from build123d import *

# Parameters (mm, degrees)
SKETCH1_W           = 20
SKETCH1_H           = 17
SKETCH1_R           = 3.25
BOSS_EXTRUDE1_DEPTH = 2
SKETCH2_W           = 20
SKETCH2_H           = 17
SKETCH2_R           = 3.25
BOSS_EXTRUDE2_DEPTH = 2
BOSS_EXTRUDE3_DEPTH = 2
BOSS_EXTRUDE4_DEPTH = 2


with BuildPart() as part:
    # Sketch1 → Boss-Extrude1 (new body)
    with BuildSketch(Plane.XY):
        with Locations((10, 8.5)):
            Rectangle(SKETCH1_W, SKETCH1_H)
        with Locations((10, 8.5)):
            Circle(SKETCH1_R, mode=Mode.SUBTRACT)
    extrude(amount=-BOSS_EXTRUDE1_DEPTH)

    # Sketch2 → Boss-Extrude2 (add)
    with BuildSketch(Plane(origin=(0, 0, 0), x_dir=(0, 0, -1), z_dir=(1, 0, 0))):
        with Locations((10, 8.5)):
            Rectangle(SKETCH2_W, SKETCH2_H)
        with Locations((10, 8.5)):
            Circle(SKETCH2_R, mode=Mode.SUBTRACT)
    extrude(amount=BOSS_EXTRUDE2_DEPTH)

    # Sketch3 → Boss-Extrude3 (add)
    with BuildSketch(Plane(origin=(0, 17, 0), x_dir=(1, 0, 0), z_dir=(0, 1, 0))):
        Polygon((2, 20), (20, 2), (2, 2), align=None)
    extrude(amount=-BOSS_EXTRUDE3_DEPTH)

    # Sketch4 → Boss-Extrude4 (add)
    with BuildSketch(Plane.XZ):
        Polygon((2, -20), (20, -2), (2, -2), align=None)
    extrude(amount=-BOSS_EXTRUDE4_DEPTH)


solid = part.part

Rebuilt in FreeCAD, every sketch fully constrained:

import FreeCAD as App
import Part
import Sketcher
from FreeCAD import Vector

doc = App.newDocument("Part")
body = doc.addObject("PartDesign::Body", "Body")

# Sketch on XY plane
sketch1 = doc.addObject("Sketcher::SketchObject", "Sketch")
body.addObject(sketch1)
sketch1.AttachmentSupport = (doc.XY_Plane, [""])
sketch1.MapMode = "FlatFace"
sketch1.addGeometry([
    Part.LineSegment(Vector(0, 17, 0), Vector(0, 0, 0)),  # 0
    Part.LineSegment(Vector(0, 0, 0), Vector(20, 0, 0)),  # 1
    Part.LineSegment(Vector(20, 0, 0), Vector(20, 17, 0)),  # 2
    Part.LineSegment(Vector(20, 17, 0), Vector(0, 17, 0)),  # 3
    Part.Circle(Vector(10, 8.5, 0), Vector(0, 0, 1), 3.2),  # 4
], False)
sketch1.addConstraint([
    Sketcher.Constraint("Coincident", 0, 2, 1, 1),
    Sketcher.Constraint("Coincident", 1, 2, 2, 1),
    Sketcher.Constraint("Coincident", 2, 2, 3, 1),
    Sketcher.Constraint("Coincident", 3, 2, 0, 1),
    Sketcher.Constraint("Vertical", 0),
    Sketcher.Constraint("Horizontal", 1),
    Sketcher.Constraint("Vertical", 2),
    Sketcher.Constraint("Horizontal", 3),
    Sketcher.Constraint("Coincident", 0, 2, -1, 1),
    Sketcher.Constraint("Diameter", 4, 6.5),
    Sketcher.Constraint("DistanceX", 1, 1, 1, 2, 20.0),
    Sketcher.Constraint("DistanceY", 0, 2, 0, 1, 17.0),
    Sketcher.Constraint("DistanceX", -1, 1, 4, 3, 10.0),
    Sketcher.Constraint("DistanceY", -1, 1, 4, 3, 8.5),
])
pad1 = doc.addObject("PartDesign::Pad", "Pad")
body.addObject(pad1)
pad1.Profile = sketch1
pad1.Length = 2
pad1.Reversed = True

# Sketch on YZ plane
sketch2 = doc.addObject("Sketcher::SketchObject", "Sketch001")
body.addObject(sketch2)
sketch2.AttachmentSupport = (doc.YZ_Plane, [""])
sketch2.MapMode = "FlatFace"
sketch2.addGeometry([
    Part.LineSegment(Vector(17, 0, 0), Vector(0, 0, 0)),  # 0
    Part.LineSegment(Vector(0, 0, 0), Vector(0, -20, 0)),  # 1
    Part.LineSegment(Vector(0, -20, 0), Vector(17, -20, 0)),  # 2
    Part.LineSegment(Vector(17, -20, 0), Vector(17, 0, 0)),  # 3
    Part.Circle(Vector(8.5, -10, 0), Vector(0, 0, 1), 3.2),  # 4
], False)
sketch2.addConstraint([
    Sketcher.Constraint("Coincident", 0, 2, 1, 1),
    Sketcher.Constraint("Coincident", 1, 2, 2, 1),
    Sketcher.Constraint("Coincident", 2, 2, 3, 1),
    Sketcher.Constraint("Coincident", 3, 2, 0, 1),
    Sketcher.Constraint("Horizontal", 0),
    Sketcher.Constraint("Vertical", 1),
    Sketcher.Constraint("Horizontal", 2),
    Sketcher.Constraint("Vertical", 3),
    Sketcher.Constraint("Coincident", 0, 2, -1, 1),
    Sketcher.Constraint("Diameter", 4, 6.5),
    Sketcher.Constraint("DistanceX", 0, 2, 0, 1, 17.0),
    Sketcher.Constraint("DistanceY", 1, 2, 1, 1, 20.0),
    Sketcher.Constraint("DistanceY", 4, 3, -1, 1, 10.0),
    Sketcher.Constraint("DistanceX", -1, 1, 4, 3, 8.5),
])
pad2 = doc.addObject("PartDesign::Pad", "Pad001")
body.addObject(pad2)
pad2.Profile = sketch2
pad2.Length = 2

# Sketch on XZ plane
sketch3 = doc.addObject("Sketcher::SketchObject", "Sketch002")
body.addObject(sketch3)
sketch3.AttachmentSupport = (doc.XZ_Plane, [""])
sketch3.MapMode = "FlatFace"
sketch3.AttachmentOffset = App.Placement(Vector(0, 0, -17), App.Rotation())
sketch3.addGeometry([
    Part.LineSegment(Vector(20, -2, 0), Vector(2, -20, 0)),
    Part.LineSegment(Vector(2, -20, 0), Vector(2, -2, 0)),
    Part.LineSegment(Vector(2, -2, 0), Vector(20, -2, 0)),
], False)
sketch3.addConstraint([
    Sketcher.Constraint("Coincident", 0, 2, 1, 1),
    Sketcher.Constraint("Coincident", 1, 2, 2, 1),
    Sketcher.Constraint("Coincident", 2, 2, 0, 1),
    Sketcher.Constraint("Vertical", 1),
    Sketcher.Constraint("Horizontal", 2),
    Sketcher.Constraint("Equal", 2, 1),
    Sketcher.Constraint("DistanceX", 2, 1, 2, 2, 18.0),
    Sketcher.Constraint("DistanceX", -1, 1, 0, 2, 2.0),
    Sketcher.Constraint("DistanceY", 0, 2, -1, 1, 20.0),
])
pad3 = doc.addObject("PartDesign::Pad", "Pad002")
body.addObject(pad3)
pad3.Profile = sketch3
pad3.Length = 2

# Sketch on XZ plane
sketch4 = doc.addObject("Sketcher::SketchObject", "Sketch003")
body.addObject(sketch4)
sketch4.AttachmentSupport = (doc.XZ_Plane, [""])
sketch4.MapMode = "FlatFace"
sketch4.addGeometry([
    Part.LineSegment(Vector(2, -20, 0), Vector(20, -2, 0)),
    Part.LineSegment(Vector(20, -2, 0), Vector(2, -2, 0)),
    Part.LineSegment(Vector(2, -2, 0), Vector(2, -20, 0)),
], False)
sketch4.addConstraint([
    Sketcher.Constraint("Coincident", 0, 2, 1, 1),
    Sketcher.Constraint("Coincident", 1, 2, 2, 1),
    Sketcher.Constraint("Coincident", 2, 2, 0, 1),
    Sketcher.Constraint("Horizontal", 1),
    Sketcher.Constraint("Vertical", 2),
    Sketcher.Constraint("Equal", 1, 2),
    Sketcher.Constraint("DistanceX", 1, 2, 1, 1, 18.0),
    Sketcher.Constraint("DistanceX", -1, 1, 0, 2, 20.0),
    Sketcher.Constraint("DistanceY", 0, 2, -1, 1, 2.0),
])
pad4 = doc.addObject("PartDesign::Pad", "Pad003")
body.addObject(pad4)
pad4.Profile = sketch4
pad4.Length = 2
pad4.Reversed = True

doc.recompute()
